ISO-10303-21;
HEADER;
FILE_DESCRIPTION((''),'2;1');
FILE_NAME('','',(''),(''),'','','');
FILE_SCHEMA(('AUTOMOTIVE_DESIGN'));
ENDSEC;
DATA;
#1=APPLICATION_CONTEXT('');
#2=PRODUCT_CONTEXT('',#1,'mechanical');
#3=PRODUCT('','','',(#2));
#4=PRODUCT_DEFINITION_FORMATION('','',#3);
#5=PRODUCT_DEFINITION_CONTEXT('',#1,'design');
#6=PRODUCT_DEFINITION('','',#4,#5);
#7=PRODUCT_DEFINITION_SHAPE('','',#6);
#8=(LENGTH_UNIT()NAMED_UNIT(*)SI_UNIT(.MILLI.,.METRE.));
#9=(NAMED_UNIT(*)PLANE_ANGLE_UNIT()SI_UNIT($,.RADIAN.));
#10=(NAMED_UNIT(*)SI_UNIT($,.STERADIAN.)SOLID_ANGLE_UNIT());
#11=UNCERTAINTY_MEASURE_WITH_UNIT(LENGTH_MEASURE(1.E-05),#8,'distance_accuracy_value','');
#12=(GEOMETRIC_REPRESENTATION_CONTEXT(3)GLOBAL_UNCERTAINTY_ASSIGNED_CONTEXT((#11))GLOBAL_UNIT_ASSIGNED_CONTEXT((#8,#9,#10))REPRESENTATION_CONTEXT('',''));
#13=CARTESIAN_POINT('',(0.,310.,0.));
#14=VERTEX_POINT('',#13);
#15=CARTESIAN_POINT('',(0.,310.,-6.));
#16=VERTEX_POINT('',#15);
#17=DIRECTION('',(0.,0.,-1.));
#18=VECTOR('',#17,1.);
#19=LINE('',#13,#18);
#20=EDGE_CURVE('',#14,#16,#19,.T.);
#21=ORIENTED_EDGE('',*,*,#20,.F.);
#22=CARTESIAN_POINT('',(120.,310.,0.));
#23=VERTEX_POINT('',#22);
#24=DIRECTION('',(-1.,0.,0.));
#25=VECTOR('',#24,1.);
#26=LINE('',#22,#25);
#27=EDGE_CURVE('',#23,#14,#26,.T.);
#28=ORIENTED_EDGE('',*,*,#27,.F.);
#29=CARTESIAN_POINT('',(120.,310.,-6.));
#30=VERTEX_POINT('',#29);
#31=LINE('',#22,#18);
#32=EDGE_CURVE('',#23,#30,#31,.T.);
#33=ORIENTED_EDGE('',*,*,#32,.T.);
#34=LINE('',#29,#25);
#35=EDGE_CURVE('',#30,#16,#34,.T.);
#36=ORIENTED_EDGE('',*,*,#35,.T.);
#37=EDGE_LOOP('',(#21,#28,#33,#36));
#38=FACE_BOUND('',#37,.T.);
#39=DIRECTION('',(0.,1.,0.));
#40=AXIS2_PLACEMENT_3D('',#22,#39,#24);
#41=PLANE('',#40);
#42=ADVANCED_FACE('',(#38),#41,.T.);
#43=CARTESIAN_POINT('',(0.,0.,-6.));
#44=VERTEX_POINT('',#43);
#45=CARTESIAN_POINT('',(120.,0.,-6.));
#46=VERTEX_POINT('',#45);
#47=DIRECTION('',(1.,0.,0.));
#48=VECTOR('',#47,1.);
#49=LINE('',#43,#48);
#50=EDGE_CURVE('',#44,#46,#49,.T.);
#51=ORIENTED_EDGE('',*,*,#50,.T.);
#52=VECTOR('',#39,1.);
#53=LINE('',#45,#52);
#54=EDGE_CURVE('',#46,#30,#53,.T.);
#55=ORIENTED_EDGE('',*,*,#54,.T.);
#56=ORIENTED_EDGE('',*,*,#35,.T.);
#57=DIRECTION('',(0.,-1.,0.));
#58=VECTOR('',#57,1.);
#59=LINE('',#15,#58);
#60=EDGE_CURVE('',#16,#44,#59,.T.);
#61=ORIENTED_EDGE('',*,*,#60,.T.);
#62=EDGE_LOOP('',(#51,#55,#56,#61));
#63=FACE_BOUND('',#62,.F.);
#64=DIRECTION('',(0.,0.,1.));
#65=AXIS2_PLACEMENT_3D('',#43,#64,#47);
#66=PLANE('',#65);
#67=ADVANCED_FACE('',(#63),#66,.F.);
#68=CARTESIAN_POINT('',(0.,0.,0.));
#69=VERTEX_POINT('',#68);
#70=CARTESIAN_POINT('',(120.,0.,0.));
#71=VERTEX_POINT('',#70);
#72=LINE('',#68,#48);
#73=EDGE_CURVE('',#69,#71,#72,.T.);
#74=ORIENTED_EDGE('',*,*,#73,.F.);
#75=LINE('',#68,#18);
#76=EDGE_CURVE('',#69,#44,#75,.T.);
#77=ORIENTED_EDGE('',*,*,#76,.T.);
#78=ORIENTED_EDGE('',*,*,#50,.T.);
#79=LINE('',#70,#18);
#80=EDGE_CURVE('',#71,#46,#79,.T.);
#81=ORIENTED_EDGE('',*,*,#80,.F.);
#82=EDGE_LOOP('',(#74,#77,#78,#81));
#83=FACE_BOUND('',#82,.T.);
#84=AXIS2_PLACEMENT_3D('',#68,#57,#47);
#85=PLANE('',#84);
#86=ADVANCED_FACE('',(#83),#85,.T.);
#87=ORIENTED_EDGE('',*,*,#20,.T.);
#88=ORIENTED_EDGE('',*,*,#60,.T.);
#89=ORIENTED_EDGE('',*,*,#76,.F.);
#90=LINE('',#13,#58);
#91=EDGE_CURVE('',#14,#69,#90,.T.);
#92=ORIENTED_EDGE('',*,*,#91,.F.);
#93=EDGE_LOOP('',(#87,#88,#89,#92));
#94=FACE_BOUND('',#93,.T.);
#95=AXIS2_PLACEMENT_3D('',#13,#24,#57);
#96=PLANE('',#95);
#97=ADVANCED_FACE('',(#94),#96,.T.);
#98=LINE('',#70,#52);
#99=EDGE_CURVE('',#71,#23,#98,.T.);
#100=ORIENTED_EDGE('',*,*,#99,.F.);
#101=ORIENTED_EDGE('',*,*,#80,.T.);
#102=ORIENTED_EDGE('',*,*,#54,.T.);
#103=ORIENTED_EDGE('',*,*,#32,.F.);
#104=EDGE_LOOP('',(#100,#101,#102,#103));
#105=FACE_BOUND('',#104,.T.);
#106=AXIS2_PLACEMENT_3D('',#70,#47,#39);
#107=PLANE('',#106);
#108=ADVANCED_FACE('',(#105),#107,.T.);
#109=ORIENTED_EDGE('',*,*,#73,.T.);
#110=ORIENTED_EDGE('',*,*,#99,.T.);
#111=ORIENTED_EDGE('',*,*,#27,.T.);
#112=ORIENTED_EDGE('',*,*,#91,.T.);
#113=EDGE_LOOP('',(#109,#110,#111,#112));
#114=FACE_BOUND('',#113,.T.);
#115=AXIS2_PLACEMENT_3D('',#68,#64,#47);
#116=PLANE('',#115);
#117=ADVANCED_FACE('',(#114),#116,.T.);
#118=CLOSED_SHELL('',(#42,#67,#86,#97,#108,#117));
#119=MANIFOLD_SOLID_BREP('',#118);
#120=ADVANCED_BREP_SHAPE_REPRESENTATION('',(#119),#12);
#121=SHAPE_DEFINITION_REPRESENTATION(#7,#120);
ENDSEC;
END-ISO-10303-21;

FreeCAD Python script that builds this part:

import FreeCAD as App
import Part
import Sketcher

V = App.Vector

doc = App.newDocument("Part")
body = doc.addObject("PartDesign::Body", "Body")

sketch1 = body.newObject("Sketcher::SketchObject", "Sketch")
sketch1.AttachmentSupport = (doc.getObject("XY_Plane"), [""])
sketch1.MapMode = "FlatFace"
sketch1.addGeometry(Part.LineSegment(V(0, 310, 0), V(0, 0, 0)), False)
sketch1.addGeometry(Part.LineSegment(V(0, 0, 0), V(120, 0, 0)), False)
sketch1.addGeometry(Part.LineSegment(V(120, 0, 0), V(120, 310, 0)), False)
sketch1.addGeometry(Part.LineSegment(V(120, 310, 0), V(0, 310, 0)), False)
sketch1.addConstraint(Sketcher.Constraint("Coincident", 0, 2, 1, 1))
sketch1.addConstraint(Sketcher.Constraint("Coincident", 1, 2, 2, 1))
sketch1.addConstraint(Sketcher.Constraint("Coincident", 2, 2, 3, 1))
sketch1.addConstraint(Sketcher.Constraint("Coincident", 3, 2, 0, 1))
sketch1.addConstraint(Sketcher.Constraint("Vertical", 0))
sketch1.addConstraint(Sketcher.Constraint("Horizontal", 1))
sketch1.addConstraint(Sketcher.Constraint("Vertical", 2))
sketch1.addConstraint(Sketcher.Constraint("Horizontal", 3))
sketch1.addConstraint(Sketcher.Constraint("Coincident", 0, 2, -1, 1))
sketch1.addConstraint(Sketcher.Constraint("DistanceX", 1, 1, 1, 2, 120.0))
sketch1.addConstraint(Sketcher.Constraint("DistanceY", 0, 2, 0, 1, 310.0))
pad1 = body.newObject("PartDesign::Pad", "Pad")
pad1.Profile = sketch1
pad1.Length = 6
pad1.Reversed = True

doc.recompute()
